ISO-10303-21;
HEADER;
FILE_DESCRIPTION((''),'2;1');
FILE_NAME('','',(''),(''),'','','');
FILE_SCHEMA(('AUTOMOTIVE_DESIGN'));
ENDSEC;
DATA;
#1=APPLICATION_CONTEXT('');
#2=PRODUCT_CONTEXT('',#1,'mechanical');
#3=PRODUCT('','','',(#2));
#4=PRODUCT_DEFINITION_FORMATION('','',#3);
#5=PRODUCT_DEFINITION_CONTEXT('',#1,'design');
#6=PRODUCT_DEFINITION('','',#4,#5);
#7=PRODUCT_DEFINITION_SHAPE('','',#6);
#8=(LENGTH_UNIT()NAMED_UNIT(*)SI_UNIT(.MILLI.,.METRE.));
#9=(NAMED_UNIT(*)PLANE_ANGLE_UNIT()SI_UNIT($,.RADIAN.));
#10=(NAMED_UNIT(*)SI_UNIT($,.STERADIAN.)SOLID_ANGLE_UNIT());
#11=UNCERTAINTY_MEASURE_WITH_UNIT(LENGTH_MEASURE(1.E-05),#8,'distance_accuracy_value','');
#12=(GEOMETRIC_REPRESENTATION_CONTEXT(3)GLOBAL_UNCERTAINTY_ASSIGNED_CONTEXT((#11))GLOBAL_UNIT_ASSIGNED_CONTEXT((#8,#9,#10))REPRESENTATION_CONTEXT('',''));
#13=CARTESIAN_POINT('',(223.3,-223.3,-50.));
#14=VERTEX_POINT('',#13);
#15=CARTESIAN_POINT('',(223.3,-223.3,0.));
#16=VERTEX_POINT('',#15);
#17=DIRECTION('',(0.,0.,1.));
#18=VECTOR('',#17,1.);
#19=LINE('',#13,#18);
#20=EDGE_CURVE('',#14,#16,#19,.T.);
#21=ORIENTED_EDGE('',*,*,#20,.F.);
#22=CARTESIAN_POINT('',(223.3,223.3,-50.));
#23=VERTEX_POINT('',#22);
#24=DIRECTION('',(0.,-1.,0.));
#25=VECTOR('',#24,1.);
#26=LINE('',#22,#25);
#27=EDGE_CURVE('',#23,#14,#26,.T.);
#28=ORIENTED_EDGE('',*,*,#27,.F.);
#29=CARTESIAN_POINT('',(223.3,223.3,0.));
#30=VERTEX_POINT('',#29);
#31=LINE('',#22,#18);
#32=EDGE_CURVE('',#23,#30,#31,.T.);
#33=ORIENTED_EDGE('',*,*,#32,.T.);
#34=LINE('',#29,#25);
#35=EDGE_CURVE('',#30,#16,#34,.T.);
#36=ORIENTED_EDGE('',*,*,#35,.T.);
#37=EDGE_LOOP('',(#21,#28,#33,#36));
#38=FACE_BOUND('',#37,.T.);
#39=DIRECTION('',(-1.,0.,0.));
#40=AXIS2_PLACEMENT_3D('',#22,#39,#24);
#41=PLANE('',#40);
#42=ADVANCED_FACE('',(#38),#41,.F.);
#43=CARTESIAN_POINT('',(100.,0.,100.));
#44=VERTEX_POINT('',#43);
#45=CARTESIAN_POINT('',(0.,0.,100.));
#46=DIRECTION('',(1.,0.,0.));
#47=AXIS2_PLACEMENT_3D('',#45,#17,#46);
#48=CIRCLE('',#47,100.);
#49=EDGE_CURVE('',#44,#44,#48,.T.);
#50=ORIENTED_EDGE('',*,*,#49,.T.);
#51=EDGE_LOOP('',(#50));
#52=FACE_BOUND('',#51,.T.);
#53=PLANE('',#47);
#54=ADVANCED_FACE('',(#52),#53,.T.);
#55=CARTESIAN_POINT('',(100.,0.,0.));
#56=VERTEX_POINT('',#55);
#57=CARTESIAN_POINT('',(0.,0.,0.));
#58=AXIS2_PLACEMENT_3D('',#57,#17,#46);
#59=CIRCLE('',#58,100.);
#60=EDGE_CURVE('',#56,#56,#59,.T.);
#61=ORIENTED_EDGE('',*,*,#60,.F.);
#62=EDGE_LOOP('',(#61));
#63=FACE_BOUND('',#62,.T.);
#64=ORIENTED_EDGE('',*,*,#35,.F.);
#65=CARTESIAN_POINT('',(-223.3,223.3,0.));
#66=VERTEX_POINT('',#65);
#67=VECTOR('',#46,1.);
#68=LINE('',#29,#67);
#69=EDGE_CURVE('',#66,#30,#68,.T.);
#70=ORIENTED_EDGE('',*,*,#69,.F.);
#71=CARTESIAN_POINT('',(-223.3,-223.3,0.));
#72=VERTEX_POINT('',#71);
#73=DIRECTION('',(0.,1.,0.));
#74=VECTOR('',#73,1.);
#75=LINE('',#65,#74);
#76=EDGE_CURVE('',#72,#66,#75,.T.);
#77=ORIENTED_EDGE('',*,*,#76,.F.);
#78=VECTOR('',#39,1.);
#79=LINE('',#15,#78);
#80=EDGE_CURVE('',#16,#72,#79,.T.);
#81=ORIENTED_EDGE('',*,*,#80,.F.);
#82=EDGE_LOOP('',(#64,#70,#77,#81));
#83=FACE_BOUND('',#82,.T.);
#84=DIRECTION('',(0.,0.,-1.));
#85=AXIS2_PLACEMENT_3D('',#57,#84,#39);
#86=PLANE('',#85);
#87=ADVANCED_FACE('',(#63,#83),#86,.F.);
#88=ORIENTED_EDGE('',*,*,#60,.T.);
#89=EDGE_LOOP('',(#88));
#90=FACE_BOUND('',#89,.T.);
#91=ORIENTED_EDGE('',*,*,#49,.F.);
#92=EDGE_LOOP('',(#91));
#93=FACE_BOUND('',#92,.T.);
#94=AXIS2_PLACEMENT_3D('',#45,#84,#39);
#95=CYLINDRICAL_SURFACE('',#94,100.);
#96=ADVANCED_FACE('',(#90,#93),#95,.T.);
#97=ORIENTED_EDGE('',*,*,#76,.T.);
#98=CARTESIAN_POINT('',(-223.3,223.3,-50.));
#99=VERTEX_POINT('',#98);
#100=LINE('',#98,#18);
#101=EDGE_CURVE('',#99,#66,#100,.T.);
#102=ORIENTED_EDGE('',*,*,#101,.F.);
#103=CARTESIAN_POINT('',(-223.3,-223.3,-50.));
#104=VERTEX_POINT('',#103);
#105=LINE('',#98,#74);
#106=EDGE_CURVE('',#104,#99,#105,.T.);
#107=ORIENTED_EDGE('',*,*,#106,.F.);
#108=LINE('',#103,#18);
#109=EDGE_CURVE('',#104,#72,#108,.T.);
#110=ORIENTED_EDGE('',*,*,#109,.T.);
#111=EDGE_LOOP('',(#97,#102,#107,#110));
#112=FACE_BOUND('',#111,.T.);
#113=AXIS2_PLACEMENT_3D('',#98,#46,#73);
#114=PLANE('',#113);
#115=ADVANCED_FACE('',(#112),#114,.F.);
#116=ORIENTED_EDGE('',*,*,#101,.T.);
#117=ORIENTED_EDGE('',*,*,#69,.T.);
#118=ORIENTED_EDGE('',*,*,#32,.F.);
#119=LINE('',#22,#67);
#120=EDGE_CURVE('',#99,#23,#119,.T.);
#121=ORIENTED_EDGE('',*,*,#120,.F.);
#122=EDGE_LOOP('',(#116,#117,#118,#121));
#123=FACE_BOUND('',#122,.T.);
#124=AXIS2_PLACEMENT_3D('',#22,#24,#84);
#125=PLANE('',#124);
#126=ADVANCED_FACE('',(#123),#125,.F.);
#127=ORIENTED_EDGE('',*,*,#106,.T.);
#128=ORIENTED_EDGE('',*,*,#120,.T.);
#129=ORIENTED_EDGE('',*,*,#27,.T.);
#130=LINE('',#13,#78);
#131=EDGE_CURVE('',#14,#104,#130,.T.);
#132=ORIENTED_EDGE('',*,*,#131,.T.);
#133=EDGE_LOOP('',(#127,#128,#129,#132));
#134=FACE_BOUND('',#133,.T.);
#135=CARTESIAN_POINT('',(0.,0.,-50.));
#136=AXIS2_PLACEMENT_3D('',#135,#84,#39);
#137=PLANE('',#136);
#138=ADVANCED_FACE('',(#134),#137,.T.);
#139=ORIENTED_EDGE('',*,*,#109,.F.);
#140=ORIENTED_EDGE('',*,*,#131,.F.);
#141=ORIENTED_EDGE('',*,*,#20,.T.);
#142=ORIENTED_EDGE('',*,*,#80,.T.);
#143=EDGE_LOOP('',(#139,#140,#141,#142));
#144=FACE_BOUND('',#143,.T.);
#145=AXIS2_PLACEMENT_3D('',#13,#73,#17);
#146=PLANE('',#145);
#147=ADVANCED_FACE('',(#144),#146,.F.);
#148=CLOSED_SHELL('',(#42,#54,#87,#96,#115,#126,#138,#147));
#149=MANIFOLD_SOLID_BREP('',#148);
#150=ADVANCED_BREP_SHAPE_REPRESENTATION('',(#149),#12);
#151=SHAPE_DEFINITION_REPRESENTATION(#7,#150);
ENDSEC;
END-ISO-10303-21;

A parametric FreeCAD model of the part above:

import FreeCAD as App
import Part
import Sketcher

V = App.Vector

doc = App.newDocument("Part")
body = doc.addObject("PartDesign::Body", "Body")

# Sketch on XY plane
sketch1 = body.newObject("Sketcher::SketchObject", "Sketch")
sketch1.AttachmentSupport = (doc.getObject("XY_Plane"), [""])
sketch1.MapMode = "FlatFace"
sketch1.addGeometry(Part.Circle(V(0, 0, 0), V(0, 0, 1), 100), False)
sketch1.addConstraint([
    Sketcher.Constraint("Coincident", 0, 3, -1, 1),
    Sketcher.Constraint("Diameter", 0, 200.0),
])
pad1 = body.newObject("PartDesign::Pad", "Pad")
pad1.Profile = sketch1
pad1.Length = 100

# Sketch on XY plane
sketch2 = body.newObject("Sketcher::SketchObject", "Sketch001")
sketch2.AttachmentSupport = (doc.getObject("XY_Plane"), [""])
sketch2.MapMode = "FlatFace"
sketch2.addGeometry([
    Part.LineSegment(V(223, 223, 0), V(223, -223, 0)),
    Part.LineSegment(V(223, -223, 0), V(-223, -223, 0)),
    Part.LineSegment(V(-223, -223, 0), V(-223, 223, 0)),
    Part.LineSegment(V(-223, 223, 0), V(223, 223, 0)),
], False)
sketch2.addConstraint([
    Sketcher.Constraint("Coincident", 0, 2, 1, 1),
    Sketcher.Constraint("Coincident", 1, 2, 2, 1),
    Sketcher.Constraint("Coincident", 2, 2, 3, 1),
    Sketcher.Constraint("Coincident", 3, 2, 0, 1),
    Sketcher.Constraint("Vertical", 0),
    Sketcher.Constraint("Horizontal", 1),
    Sketcher.Constraint("Vertical", 2),
    Sketcher.Constraint("Horizontal", 3),
    Sketcher.Constraint("Symmetric", 0, 2, 2, 2, -1, 1),
    Sketcher.Constraint("Equal", 3, 0),
    Sketcher.Constraint("DistanceX", 1, 2, 1, 1, 446.6),
])
pad2 = body.newObject("PartDesign::Pad", "Pad001")
pad2.Profile = sketch2
pad2.Length = 50
pad2.Reversed = True

doc.recompute()
